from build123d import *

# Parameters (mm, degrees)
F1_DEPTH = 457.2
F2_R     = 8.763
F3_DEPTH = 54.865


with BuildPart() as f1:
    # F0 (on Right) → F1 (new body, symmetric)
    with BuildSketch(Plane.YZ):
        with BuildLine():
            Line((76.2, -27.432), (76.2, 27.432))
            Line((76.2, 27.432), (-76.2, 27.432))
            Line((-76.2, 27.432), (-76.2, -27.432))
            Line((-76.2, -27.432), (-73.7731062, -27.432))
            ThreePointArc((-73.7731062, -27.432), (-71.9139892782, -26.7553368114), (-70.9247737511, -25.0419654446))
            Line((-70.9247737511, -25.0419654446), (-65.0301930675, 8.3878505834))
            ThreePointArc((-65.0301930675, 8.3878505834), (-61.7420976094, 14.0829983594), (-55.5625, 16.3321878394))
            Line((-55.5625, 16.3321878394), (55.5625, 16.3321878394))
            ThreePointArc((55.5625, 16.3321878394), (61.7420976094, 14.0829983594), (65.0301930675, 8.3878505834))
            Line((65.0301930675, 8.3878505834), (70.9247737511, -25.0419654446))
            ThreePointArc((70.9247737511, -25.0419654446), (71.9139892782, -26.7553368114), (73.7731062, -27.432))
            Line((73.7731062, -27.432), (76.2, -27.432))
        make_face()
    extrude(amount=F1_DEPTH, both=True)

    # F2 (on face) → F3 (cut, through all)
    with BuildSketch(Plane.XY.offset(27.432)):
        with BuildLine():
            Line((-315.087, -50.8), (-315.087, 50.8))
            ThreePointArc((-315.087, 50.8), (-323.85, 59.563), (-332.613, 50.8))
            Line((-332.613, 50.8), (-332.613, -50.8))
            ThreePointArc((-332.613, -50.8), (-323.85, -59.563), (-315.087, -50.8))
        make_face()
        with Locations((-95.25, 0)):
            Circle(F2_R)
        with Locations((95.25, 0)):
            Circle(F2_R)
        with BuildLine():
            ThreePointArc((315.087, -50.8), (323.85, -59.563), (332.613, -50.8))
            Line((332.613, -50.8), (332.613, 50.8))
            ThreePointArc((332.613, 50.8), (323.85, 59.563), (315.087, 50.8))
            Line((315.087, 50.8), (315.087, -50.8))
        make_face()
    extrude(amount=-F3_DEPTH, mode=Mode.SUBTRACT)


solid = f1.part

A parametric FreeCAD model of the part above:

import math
import FreeCAD as App
import Part
import Sketcher

V = App.Vector
Q = App.Units.Quantity

doc = App.newDocument("Part")
body = doc.addObject("PartDesign::Body", "Body")

sketch1 = body.newObject("Sketcher::SketchObject", "Sketch")
sketch1.AttachmentSupport = (doc.getObject("YZ_Plane"), [""])
sketch1.MapMode = "FlatFace"
sketch1.addGeometry([
    Part.LineSegment(V(76.2, -27.4, 0), V(76.2, 27.4, 0)),
    Part.LineSegment(V(76.2, 27.4, 0), V(-76.2, 27.4, 0)),
    Part.LineSegment(V(-76.2, 27.4, 0), V(-76.2, -27.4, 0)),
    Part.LineSegment(V(-76.2, -27.4, 0), V(-73.8, -27.4, 0)),
    Part.ArcOfCircle(Part.Circle(V(-73.8, -24.5, 0), V(0, 0, 1), 2.9), math.radians(-90), math.radians(-10)),
    Part.LineSegment(V(-70.9, -25, 0), V(-65, 8.4, 0)),
    Part.ArcOfCircle(Part.Circle(V(-55.6, 6.7, 0), V(0, 0, 1), 9.6), math.radians(90), math.radians(170)),
    Part.LineSegment(V(-55.6, 16.3, 0), V(55.6, 16.3, 0)),
    Part.ArcOfCircle(Part.Circle(V(55.6, 6.7, 0), V(0, 0, 1), 9.6), math.radians(10), math.radians(90)),
    Part.LineSegment(V(65, 8.4, 0), V(70.9, -25, 0)),
    Part.ArcOfCircle(Part.Circle(V(73.8, -24.5, 0), V(0, 0, 1), 2.9), math.radians(-170), math.radians(-90)),
    Part.LineSegment(V(73.8, -27.4, 0), V(76.2, -27.4, 0)),
], False)
sketch1.addConstraint([
    Sketcher.Constraint("Coincident", 0, 2, 1, 1),
    Sketcher.Constraint("Coincident", 1, 2, 2, 1),
    Sketcher.Constraint("Coincident", 2, 2, 3, 1),
    Sketcher.Constraint("Tangent", 3, 2, 4, 1),
    Sketcher.Constraint("Tangent", 4, 2, 5, 1),
    Sketcher.Constraint("Tangent", 5, 2, 6, 2),
    Sketcher.Constraint("Tangent", 6, 1, 7, 1),
    Sketcher.Constraint("Tangent", 7, 2, 8, 2),
    Sketcher.Constraint("Tangent", 8, 1, 9, 1),
    Sketcher.Constraint("Tangent", 9, 2, 10, 1),
    Sketcher.Constraint("Tangent", 10, 2, 11, 1),
    Sketcher.Constraint("Coincident", 11, 2, 0, 1),
    Sketcher.Constraint("Vertical", 0),
    Sketcher.Constraint("Horizontal", 1),
    Sketcher.Constraint("Vertical", 2),
    Sketcher.Constraint("Horizontal", 3),
    Sketcher.Constraint("Horizontal", 7),
    Sketcher.Constraint("Horizontal", 11),
    Sketcher.Constraint("Equal", 6, 8),
    Sketcher.Constraint("Equal", 4, 10),
    Sketcher.Constraint("Symmetric", 0, 2, 2, 2, -1, 1),
    Sketcher.Constraint("Symmetric", 4, 3, 10, 3, -2),
    Sketcher.Constraint("Horizontal", 5, 2, 8, 1),
    Sketcher.Constraint("DistanceX", 1, 2, 1, 1, Q("6 in")),
    Sketcher.Constraint("Angle", 5, Q("79.999996 deg")),
    Sketcher.Constraint("DistanceY", 0, 1, 0, 2, Q("2.16 in")),
    Sketcher.Constraint("DistanceX", 7, 1, 7, 2, Q("4.375 in")),
    Sketcher.Constraint("Radius", 4, Q("2.892273 mm")),
    Sketcher.Constraint("Radius", 6, Q("9.613748 mm")),
    Sketcher.Constraint("DistanceX", 3, 1, 3, 2, Q("2.426894 mm")),
])
pad1 = body.newObject("PartDesign::Pad", "Pad")
pad1.Profile = sketch1
pad1.Length = Q("36 in")
pad1.Midplane = True

sketch2 = body.newObject("Sketcher::SketchObject", "Sketch001")
sketch2.AttachmentSupport = (doc.getObject("XY_Plane"), [""])
sketch2.MapMode = "FlatFace"
sketch2.AttachmentOffset = App.Placement(V(0, 0, 1.08 * 25.4), App.Rotation())
sketch2.addGeometry([
    Part.LineSegment(V(-315, -51, 0), V(-315, 51, 0)),
    Part.ArcOfCircle(Part.Circle(V(-324, 51, 0), V(0, 0, 1), 9), math.radians(0), math.radians(180)),
    Part.LineSegment(V(-333, 51, 0), V(-333, -51, 0)),
    Part.ArcOfCircle(Part.Circle(V(-324, -51, 0), V(0, 0, 1), 9), math.radians(180), math.radians(360)),
    Part.Circle(V(-95, 0, 0), V(0, 0, 1), 9),
    Part.Circle(V(95, 0, 0), V(0, 0, 1), 9),
    Part.ArcOfCircle(Part.Circle(V(324, -51, 0), V(0, 0, 1), 9), math.radians(180), math.radians(360)),
    Part.LineSegment(V(333, -51, 0), V(333, 51, 0)),
    Part.ArcOfCircle(Part.Circle(V(324, 51, 0), V(0, 0, 1), 9), math.radians(0), math.radians(180)),
    Part.LineSegment(V(315, 51, 0), V(315, -51, 0)),
], False)
sketch2.addConstraint([
    Sketcher.Constraint("Tangent", 0, 2, 1, 1),
    Sketcher.Constraint("Tangent", 1, 2, 2, 1),
    Sketcher.Constraint("Tangent", 2, 2, 3, 1),
    Sketcher.Constraint("Tangent", 3, 2, 0, 1),
    Sketcher.Constraint("Tangent", 6, 2, 7, 1),
    Sketcher.Constraint("Tangent", 7, 2, 8, 1),
    Sketcher.Constraint("Tangent", 8, 2, 9, 1),
    Sketcher.Constraint("Tangent", 9, 2, 6, 1),
    Sketcher.Constraint("Vertical", 0),
    Sketcher.Constraint("Vertical", 2),
    Sketcher.Constraint("Vertical", 7),
    Sketcher.Constraint("Vertical", 9),
    Sketcher.Constraint("Equal", 3, 4),
    Sketcher.Constraint("Equal", 4, 5),
    Sketcher.Constraint("Equal", 5, 6),
    Sketcher.Constraint("Symmetric", 4, 3, 5, 3, -1, 1),
    Sketcher.Constraint("Symmetric", 1, 3, 6, 3, -1, 1),
    Sketcher.Constraint("PointOnObject", 4, 3, -1),
    Sketcher.Constraint("Horizontal", 3, 3, 6, 3),
    Sketcher.Constraint("Horizontal", 1, 3, 8, 3),
    Sketcher.Constraint("Diameter", 4, Q("0.69 in")),
    Sketcher.Constraint("DistanceY", 0, 1, 0, 2, Q("4 in")),
    Sketcher.Constraint("DistanceX", 1, 3, 4, 3, Q("9 in")),
    Sketcher.Constraint("DistanceX", 4, 3, 5, 3, Q("7.5 in")),
])
pocket1 = body.newObject("PartDesign::Pocket", "Pocket")
pocket1.Profile = sketch2
pocket1.Type = "ThroughAll"

doc.recompute()
